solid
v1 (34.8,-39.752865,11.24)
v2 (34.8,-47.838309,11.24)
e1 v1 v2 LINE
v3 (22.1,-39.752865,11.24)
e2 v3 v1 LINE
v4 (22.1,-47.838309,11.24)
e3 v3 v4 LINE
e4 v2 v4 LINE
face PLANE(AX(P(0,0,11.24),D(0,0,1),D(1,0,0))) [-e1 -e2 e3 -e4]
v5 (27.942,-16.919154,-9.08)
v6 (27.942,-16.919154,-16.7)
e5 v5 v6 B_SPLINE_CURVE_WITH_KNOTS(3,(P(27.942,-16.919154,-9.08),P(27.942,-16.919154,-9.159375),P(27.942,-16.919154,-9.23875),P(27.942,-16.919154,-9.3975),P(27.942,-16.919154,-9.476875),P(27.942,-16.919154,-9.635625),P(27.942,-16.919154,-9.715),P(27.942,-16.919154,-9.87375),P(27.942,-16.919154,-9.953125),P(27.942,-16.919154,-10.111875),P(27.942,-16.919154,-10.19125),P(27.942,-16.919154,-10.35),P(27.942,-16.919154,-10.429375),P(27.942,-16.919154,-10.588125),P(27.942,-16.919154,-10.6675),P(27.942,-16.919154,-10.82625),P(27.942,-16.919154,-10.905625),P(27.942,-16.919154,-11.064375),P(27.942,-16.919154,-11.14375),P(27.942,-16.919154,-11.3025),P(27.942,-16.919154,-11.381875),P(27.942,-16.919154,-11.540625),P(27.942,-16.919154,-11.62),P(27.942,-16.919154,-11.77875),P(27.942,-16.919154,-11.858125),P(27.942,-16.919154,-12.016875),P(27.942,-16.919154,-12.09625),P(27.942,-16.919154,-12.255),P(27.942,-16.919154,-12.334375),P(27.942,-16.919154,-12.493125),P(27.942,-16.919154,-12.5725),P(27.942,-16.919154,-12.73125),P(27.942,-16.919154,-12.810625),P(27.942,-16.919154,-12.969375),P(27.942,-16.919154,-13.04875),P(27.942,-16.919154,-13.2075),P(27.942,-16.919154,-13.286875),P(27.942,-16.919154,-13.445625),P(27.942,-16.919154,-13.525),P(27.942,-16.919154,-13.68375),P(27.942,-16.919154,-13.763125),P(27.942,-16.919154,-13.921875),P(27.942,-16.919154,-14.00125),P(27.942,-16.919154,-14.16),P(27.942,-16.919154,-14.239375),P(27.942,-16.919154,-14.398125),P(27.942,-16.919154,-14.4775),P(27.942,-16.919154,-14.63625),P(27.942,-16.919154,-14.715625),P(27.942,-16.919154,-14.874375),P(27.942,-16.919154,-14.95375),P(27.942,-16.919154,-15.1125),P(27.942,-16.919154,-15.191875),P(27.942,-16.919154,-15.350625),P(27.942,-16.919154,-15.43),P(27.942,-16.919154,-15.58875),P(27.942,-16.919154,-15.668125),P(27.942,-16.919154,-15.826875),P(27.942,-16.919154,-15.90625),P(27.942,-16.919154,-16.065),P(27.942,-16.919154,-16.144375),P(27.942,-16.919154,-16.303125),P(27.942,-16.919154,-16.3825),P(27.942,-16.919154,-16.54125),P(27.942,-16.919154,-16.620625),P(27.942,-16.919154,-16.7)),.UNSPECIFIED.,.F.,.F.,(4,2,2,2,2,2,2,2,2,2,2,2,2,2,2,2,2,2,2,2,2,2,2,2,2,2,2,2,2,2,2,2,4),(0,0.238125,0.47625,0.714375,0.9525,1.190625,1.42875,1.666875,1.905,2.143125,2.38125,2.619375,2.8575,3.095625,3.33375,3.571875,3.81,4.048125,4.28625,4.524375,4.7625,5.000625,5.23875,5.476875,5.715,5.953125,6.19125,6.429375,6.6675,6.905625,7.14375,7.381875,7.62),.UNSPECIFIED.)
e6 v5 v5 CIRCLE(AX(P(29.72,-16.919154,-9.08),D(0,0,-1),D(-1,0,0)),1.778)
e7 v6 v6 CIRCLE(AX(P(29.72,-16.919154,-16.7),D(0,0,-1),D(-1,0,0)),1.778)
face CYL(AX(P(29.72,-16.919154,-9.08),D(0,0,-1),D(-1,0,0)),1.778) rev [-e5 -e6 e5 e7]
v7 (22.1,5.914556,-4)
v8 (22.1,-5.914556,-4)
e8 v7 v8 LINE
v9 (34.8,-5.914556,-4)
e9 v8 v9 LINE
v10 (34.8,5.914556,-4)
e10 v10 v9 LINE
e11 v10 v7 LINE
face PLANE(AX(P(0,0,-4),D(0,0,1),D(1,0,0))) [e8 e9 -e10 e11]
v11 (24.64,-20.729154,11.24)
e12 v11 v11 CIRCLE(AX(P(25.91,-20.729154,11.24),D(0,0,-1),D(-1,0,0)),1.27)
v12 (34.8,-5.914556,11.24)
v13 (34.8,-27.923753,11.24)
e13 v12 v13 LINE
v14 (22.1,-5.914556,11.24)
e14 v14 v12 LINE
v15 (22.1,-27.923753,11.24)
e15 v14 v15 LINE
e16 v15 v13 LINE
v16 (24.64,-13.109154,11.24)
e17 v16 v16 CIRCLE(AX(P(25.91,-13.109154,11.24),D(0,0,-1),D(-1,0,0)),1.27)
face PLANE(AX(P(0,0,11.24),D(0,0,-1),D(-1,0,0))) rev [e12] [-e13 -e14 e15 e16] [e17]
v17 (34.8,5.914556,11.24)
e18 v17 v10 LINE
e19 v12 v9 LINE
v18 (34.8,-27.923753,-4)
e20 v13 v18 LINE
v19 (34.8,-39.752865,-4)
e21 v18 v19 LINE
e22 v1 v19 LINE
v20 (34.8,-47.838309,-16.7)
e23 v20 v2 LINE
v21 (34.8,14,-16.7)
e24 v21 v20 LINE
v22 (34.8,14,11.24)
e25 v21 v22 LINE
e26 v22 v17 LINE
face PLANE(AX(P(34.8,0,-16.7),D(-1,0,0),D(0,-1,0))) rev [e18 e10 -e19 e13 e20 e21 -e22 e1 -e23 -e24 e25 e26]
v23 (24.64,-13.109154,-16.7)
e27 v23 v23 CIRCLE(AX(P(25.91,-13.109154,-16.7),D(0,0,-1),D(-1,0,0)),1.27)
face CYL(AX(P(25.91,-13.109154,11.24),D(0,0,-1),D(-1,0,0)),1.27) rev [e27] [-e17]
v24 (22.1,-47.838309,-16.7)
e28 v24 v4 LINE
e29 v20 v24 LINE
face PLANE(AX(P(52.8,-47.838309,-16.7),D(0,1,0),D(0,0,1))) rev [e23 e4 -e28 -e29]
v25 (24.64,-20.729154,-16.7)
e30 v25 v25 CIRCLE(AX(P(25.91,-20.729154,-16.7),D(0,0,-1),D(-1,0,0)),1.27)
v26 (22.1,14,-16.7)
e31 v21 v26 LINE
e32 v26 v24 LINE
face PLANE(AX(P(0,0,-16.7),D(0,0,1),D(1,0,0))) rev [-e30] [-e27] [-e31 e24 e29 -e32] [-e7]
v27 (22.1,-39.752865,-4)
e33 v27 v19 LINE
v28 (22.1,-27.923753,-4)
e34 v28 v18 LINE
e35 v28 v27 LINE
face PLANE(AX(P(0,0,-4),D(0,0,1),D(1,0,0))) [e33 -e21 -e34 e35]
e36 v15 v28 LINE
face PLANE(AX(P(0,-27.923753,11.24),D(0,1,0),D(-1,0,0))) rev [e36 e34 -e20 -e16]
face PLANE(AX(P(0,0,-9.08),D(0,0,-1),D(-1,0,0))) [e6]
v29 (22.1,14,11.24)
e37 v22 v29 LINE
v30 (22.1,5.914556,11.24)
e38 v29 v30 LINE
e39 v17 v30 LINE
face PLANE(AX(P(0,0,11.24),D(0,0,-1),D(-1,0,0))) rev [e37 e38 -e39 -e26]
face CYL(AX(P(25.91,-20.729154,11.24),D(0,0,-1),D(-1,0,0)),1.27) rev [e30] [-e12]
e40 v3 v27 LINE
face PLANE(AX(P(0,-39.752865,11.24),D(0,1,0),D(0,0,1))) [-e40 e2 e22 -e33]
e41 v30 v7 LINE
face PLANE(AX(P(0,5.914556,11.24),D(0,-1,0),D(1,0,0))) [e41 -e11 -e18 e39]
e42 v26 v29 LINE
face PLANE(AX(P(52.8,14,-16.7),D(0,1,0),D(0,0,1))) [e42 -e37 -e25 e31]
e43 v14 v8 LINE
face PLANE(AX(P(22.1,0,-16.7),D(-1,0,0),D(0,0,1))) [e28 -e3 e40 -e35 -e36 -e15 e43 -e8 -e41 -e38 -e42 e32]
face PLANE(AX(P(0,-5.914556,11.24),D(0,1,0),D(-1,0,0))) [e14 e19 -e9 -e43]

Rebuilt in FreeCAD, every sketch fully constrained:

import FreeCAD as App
import Part
import Sketcher
Q = App.Units.Quantity

doc = App.newDocument("Part")
body = doc.addObject("PartDesign::Body", "Body")

sketch1 = doc.addObject("Sketcher::SketchObject", "Sketch")
body.addObject(sketch1)
sketch1.AttachmentSupport = (doc.XY_Plane, [""])
sketch1.MapMode = "FlatFace"
sketch1.AttachmentOffset = App.Placement(App.Vector(0, 0, -4), App.Rotation())
sketch1.addGeometry(Part.LineSegment(App.Vector(35, 14, 0), App.Vector(22, 14, 0)), False)
sketch1.addGeometry(Part.LineSegment(App.Vector(22, 14, 0), App.Vector(22, -48, 0)), False)
sketch1.addGeometry(Part.LineSegment(App.Vector(22, -48, 0), App.Vector(35, -48, 0)), False)
sketch1.addGeometry(Part.LineSegment(App.Vector(35, -48, 0), App.Vector(35, 14, 0)), False)
sketch1.addConstraint(Sketcher.Constraint("Coincident", 0, 2, 1, 1))
sketch1.addConstraint(Sketcher.Constraint("Coincident", 1, 2, 2, 1))
sketch1.addConstraint(Sketcher.Constraint("Coincident", 2, 2, 3, 1))
sketch1.addConstraint(Sketcher.Constraint("Coincident", 3, 2, 0, 1))
sketch1.addConstraint(Sketcher.Constraint("Horizontal", 0))
sketch1.addConstraint(Sketcher.Constraint("Vertical", 1))
sketch1.addConstraint(Sketcher.Constraint("Horizontal", 2))
sketch1.addConstraint(Sketcher.Constraint("Vertical", 3))
sketch1.addConstraint(Sketcher.Constraint("DistanceX", 0, 2, 0, 1, Q("0.5 in")))
sketch1.addConstraint(Sketcher.Constraint("DistanceY", 1, 2, 1, 1, 61.838309))
sketch1.addConstraint(Sketcher.Constraint("DistanceX", -1, 1, 0, 2, 22.1))
sketch1.addConstraint(Sketcher.Constraint("DistanceY", -1, 1, 0, 2, 14.0))
pad1 = doc.addObject("PartDesign::Pad", "Pad")
body.addObject(pad1)
pad1.Profile = sketch1
pad1.Length = Q("0.5 in")
pad1.Reversed = True

sketch2 = doc.addObject("Sketcher::SketchObject", "Sketch001")
body.addObject(sketch2)
sketch2.AttachmentSupport = (doc.XY_Plane, [""])
sketch2.MapMode = "FlatFace"
sketch2.AttachmentOffset = App.Placement(App.Vector(0, 0, -4), App.Rotation())
sketch2.addGeometry(Part.LineSegment(App.Vector(35, 14, 0), App.Vector(22, 14, 0)), False)
sketch2.addGeometry(Part.LineSegment(App.Vector(22, 14, 0), App.Vector(22, 6, 0)), False)
sketch2.addGeometry(Part.LineSegment(App.Vector(22, 6, 0), App.Vector(35, 6, 0)), False)
sketch2.addGeometry(Part.LineSegment(App.Vector(35, 6, 0), App.Vector(35, 14, 0)), False)
sketch2.addGeometry(Part.LineSegment(App.Vector(22, -6, 0), App.Vector(22, -28, 0)), False)
sketch2.addGeometry(Part.LineSegment(App.Vector(22, -28, 0), App.Vector(35, -28, 0)), False)
sketch2.addGeometry(Part.LineSegment(App.Vector(35, -28, 0), App.Vector(35, -6, 0)), False)
sketch2.addGeometry(Part.LineSegment(App.Vector(35, -6, 0), App.Vector(22, -6, 0)), False)
sketch2.addGeometry(Part.LineSegment(App.Vector(22, -40, 0), App.Vector(22, -48, 0)), False)
sketch2.addGeometry(Part.LineSegment(App.Vector(22, -48, 0), App.Vector(35, -48, 0)), False)
sketch2.addGeometry(Part.LineSegment(App.Vector(35, -48, 0), App.Vector(35, -40, 0)), False)
sketch2.addGeometry(Part.LineSegment(App.Vector(35, -40, 0), App.Vector(22, -40, 0)), False)
sketch2.addConstraint(Sketcher.Constraint("Coincident", 0, 2, 1, 1))
sketch2.addConstraint(Sketcher.Constraint("Coincident", 1, 2, 2, 1))
sketch2.addConstraint(Sketcher.Constraint("Coincident", 2, 2, 3, 1))
sketch2.addConstraint(Sketcher.Constraint("Coincident", 3, 2, 0, 1))
sketch2.addConstraint(Sketcher.Constraint("Coincident", 4, 2, 5, 1))
sketch2.addConstraint(Sketcher.Constraint("Coincident", 5, 2, 6, 1))
sketch2.addConstraint(Sketcher.Constraint("Coincident", 6, 2, 7, 1))
sketch2.addConstraint(Sketcher.Constraint("Coincident", 7, 2, 4, 1))
sketch2.addConstraint(Sketcher.Constraint("Coincident", 8, 2, 9, 1))
sketch2.addConstraint(Sketcher.Constraint("Coincident", 9, 2, 10, 1))
sketch2.addConstraint(Sketcher.Constraint("Coincident", 10, 2, 11, 1))
sketch2.addConstraint(Sketcher.Constraint("Coincident", 11, 2, 8, 1))
sketch2.addConstraint(Sketcher.Constraint("Horizontal", 0))
sketch2.addConstraint(Sketcher.Constraint("Vertical", 1))
sketch2.addConstraint(Sketcher.Constraint("Horizontal", 2))
sketch2.addConstraint(Sketcher.Constraint("Vertical", 3))
sketch2.addConstraint(Sketcher.Constraint("Vertical", 4))
sketch2.addConstraint(Sketcher.Constraint("Horizontal", 5))
sketch2.addConstraint(Sketcher.Constraint("Vertical", 6))
sketch2.addConstraint(Sketcher.Constraint("Horizontal", 7))
sketch2.addConstraint(Sketcher.Constraint("Vertical", 8))
sketch2.addConstraint(Sketcher.Constraint("Horizontal", 9))
sketch2.addConstraint(Sketcher.Constraint("Vertical", 10))
sketch2.addConstraint(Sketcher.Constraint("Horizontal", 11))
sketch2.addConstraint(Sketcher.Constraint("Symmetric", 2, 2, 6, 2, -1))
sketch2.addConstraint(Sketcher.Constraint("Vertical", 1, 2, 4, 2))
sketch2.addConstraint(Sketcher.Constraint("Vertical", 7, 2, 8, 2))
sketch2.addConstraint(Sketcher.Constraint("Vertical", 6, 2, 9, 2))
sketch2.addConstraint(Sketcher.Constraint("Equal", 3, 8))
sketch2.addConstraint(Sketcher.Constraint("DistanceX", 0, 2, 0, 1, Q("0.5 in")))
sketch2.addConstraint(Sketcher.Constraint("DistanceX", -1, 1, 0, 2, 22.1))
sketch2.addConstraint(Sketcher.Constraint("DistanceY", -1, 1, 0, 2, 14.0))
sketch2.addConstraint(Sketcher.Constraint("DistanceY", 1, 2, 1, 1, 8.085444))
sketch2.addConstraint(Sketcher.Constraint("DistanceY", 4, 2, 4, 1, 22.009197))
sketch2.addConstraint(Sketcher.Constraint("DistanceY", 8, 2, -1, 1, 47.838309))
pad2 = doc.addObject("PartDesign::Pad", "Pad001")
body.addObject(pad2)
pad2.Profile = sketch2
pad2.Length = Q("0.6 in")

sketch3 = doc.addObject("Sketcher::SketchObject", "Sketch002")
body.addObject(sketch3)
sketch3.AttachmentSupport = (doc.XY_Plane, [""])
sketch3.MapMode = "FlatFace"
sketch3.AttachmentOffset = App.Placement(App.Vector(0, 0, -16.7), App.Rotation())
sketch3.addGeometry(Part.Circle(App.Vector(29.7, -16.9, 0), App.Vector(0, 0, 1), 1.8), False)
sketch3.addConstraint(Sketcher.Constraint("Diameter", 0, Q("0.14 in")))
sketch3.addConstraint(Sketcher.Constraint("DistanceX", -1, 1, 0, 3, 29.72))
sketch3.addConstraint(Sketcher.Constraint("DistanceY", 0, 3, -1, 1, 16.919154))
pocket1 = doc.addObject("PartDesign::Pocket", "Pocket")
body.addObject(pocket1)
pocket1.Profile = sketch3
pocket1.Length = Q("0.3 in")
pocket1.Reversed = True

sketch4 = doc.addObject("Sketcher::SketchObject", "Sketch003")
body.addObject(sketch4)
sketch4.AttachmentSupport = (doc.XY_Plane, [""])
sketch4.MapMode = "FlatFace"
sketch4.AttachmentOffset = App.Placement(App.Vector(0, 0, -16.7), App.Rotation())
sketch4.addGeometry(Part.Circle(App.Vector(25.9, -13.1, 0), App.Vector(0, 0, 1), 1.3), False)
sketch4.addGeometry(Part.Circle(App.Vector(25.9, -20.7, 0), App.Vector(0, 0, 1), 1.3), False)
sketch4.addConstraint(Sketcher.Constraint("Equal", 0, 1))
sketch4.addConstraint(Sketcher.Constraint("Vertical", 0, 3, 1, 3))
sketch4.addConstraint(Sketcher.Constraint("Diameter", 0, Q("0.1 in")))
sketch4.addConstraint(Sketcher.Constraint("DistanceY", 1, 3, 0, 3, Q("0.3 in")))
sketch4.addConstraint(Sketcher.Constraint("DistanceX", -1, 1, 0, 3, 25.91))
sketch4.addConstraint(Sketcher.Constraint("DistanceY", 0, 3, -1, 1, 13.109154))
pocket2 = doc.addObject("PartDesign::Pocket", "Pocket001")
body.addObject(pocket2)
pocket2.Profile = sketch4
pocket2.Type = "ThroughAll"
pocket2.Reversed = True

doc.recompute()
